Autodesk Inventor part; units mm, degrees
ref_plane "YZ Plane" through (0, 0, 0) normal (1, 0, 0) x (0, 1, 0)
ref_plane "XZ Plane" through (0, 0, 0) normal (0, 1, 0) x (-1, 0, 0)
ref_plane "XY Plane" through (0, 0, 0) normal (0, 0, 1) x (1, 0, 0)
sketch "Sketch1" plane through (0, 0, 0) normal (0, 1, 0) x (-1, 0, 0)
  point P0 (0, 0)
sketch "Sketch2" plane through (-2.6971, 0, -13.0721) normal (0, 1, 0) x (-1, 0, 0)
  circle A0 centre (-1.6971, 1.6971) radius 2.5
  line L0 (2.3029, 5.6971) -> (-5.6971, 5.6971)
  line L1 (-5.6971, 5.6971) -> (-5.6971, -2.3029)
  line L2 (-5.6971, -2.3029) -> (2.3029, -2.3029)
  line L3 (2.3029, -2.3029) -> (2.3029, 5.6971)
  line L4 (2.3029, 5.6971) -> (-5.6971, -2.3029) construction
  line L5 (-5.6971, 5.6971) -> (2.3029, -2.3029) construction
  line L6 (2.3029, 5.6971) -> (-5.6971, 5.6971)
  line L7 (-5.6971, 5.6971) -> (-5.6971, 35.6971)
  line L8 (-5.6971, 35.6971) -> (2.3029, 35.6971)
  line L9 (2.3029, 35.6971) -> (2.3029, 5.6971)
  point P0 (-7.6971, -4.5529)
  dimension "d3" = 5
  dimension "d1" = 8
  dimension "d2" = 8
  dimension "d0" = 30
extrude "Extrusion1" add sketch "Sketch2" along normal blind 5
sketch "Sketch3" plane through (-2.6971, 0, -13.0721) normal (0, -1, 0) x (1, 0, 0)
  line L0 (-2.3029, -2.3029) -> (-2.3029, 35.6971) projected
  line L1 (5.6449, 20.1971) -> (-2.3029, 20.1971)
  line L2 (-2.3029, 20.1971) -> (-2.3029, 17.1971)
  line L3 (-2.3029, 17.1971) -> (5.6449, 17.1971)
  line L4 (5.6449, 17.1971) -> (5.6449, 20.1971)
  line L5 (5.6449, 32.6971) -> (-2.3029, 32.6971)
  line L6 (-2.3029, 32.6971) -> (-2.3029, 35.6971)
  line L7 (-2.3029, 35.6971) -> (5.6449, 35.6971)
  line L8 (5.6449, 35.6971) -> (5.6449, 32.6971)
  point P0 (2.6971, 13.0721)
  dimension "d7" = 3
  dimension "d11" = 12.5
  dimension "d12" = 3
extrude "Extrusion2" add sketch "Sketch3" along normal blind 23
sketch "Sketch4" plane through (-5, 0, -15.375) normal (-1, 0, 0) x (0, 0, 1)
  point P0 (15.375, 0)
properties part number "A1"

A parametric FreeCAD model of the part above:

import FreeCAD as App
import Part
import Sketcher

V = App.Vector


def add_polygon(sketch, points):
    """Adds a closed chain of lines whose ends are joined by coincident constraints."""
    first, n = sketch.GeometryCount, len(points)
    for a, b in zip(points, points[1:] + points[:1]):
        sketch.addGeometry(Part.LineSegment(App.Vector(*a, 0), App.Vector(*b, 0)), False)
    for i in range(n):
        sketch.addConstraint(Sketcher.Constraint("Coincident", first + i, 2, first + (i + 1) % n, 1))

doc = App.newDocument("Part")
body = doc.addObject("PartDesign::Body", "Body")

sketch1 = body.newObject("Sketcher::SketchObject", "Sketch")
sketch1.AttachmentSupport = (doc.getObject("XZ_Plane"), [""])
sketch1.MapMode = "FlatFace"
add_polygon(sketch1, [(-5, -15.4), (-5, 22.6), (3, 22.6), (3, -15.4)])
sketch1.addGeometry(Part.Circle(V(-1, -11.4, 0), V(0, 0, 1), 2.5), False)
sketch1.addConstraint([
    Sketcher.Constraint("Vertical", 0),
    Sketcher.Constraint("Horizontal", 1),
    Sketcher.Constraint("Vertical", 2),
    Sketcher.Constraint("Horizontal", 3),
    Sketcher.Constraint("Diameter", 4, 5.0),
    Sketcher.Constraint("DistanceX", 1, 1, 1, 2, 8.0),
    Sketcher.Constraint("DistanceX", 0, 2, -1, 1, 5.0),
    Sketcher.Constraint("DistanceY", 0, 1, 0, 2, 38.0),
    Sketcher.Constraint("DistanceX", 4, 3, -1, 1, 1.0),
    Sketcher.Constraint("DistanceY", 4, 3, 0, 2, 34.0),
    Sketcher.Constraint("DistanceY", 4, 3, -1, 1, 11.375),
])
pad1 = body.newObject("PartDesign::Pad", "Pad")
pad1.Profile = sketch1
pad1.Length = 5
pad1.Reversed = True

sketch2 = body.newObject("Sketcher::SketchObject", "Sketch001")
sketch2.AttachmentSupport = (doc.getObject("XZ_Plane"), [""])
sketch2.MapMode = "FlatFace"
add_polygon(sketch2, [(-5, 22.6), (-5, 19.6), (2.9, 19.6), (2.9, 22.6)])
add_polygon(sketch2, [(-5, 7.1), (-5, 4.1), (2.9, 4.1), (2.9, 7.1)])
sketch2.addConstraint([
    Sketcher.Constraint("Vertical", 0),
    Sketcher.Constraint("Horizontal", 1),
    Sketcher.Constraint("Vertical", 2),
    Sketcher.Constraint("Horizontal", 3),
    Sketcher.Constraint("Vertical", 4),
    Sketcher.Constraint("Horizontal", 5),
    Sketcher.Constraint("Vertical", 6),
    Sketcher.Constraint("Horizontal", 7),
    Sketcher.Constraint("Vertical", 3, 2, 4, 2),
    Sketcher.Constraint("Vertical", 2, 2, 5, 2),
    Sketcher.Constraint("Equal", 2, 4),
    Sketcher.Constraint("DistanceY", 0, 2, 0, 1, 3.0),
    Sketcher.Constraint("DistanceY", 6, 2, 1, 2, 12.5),
    Sketcher.Constraint("DistanceX", 0, 2, -1, 1, 5.0),
    Sketcher.Constraint("DistanceX", 1, 1, 1, 2, 7.9478),
    Sketcher.Constraint("DistanceY", -1, 1, 0, 2, 19.625),
])
pad2 = body.newObject("PartDesign::Pad", "Pad001")
pad2.Profile = sketch2
pad2.Length = 23

doc.recompute()
